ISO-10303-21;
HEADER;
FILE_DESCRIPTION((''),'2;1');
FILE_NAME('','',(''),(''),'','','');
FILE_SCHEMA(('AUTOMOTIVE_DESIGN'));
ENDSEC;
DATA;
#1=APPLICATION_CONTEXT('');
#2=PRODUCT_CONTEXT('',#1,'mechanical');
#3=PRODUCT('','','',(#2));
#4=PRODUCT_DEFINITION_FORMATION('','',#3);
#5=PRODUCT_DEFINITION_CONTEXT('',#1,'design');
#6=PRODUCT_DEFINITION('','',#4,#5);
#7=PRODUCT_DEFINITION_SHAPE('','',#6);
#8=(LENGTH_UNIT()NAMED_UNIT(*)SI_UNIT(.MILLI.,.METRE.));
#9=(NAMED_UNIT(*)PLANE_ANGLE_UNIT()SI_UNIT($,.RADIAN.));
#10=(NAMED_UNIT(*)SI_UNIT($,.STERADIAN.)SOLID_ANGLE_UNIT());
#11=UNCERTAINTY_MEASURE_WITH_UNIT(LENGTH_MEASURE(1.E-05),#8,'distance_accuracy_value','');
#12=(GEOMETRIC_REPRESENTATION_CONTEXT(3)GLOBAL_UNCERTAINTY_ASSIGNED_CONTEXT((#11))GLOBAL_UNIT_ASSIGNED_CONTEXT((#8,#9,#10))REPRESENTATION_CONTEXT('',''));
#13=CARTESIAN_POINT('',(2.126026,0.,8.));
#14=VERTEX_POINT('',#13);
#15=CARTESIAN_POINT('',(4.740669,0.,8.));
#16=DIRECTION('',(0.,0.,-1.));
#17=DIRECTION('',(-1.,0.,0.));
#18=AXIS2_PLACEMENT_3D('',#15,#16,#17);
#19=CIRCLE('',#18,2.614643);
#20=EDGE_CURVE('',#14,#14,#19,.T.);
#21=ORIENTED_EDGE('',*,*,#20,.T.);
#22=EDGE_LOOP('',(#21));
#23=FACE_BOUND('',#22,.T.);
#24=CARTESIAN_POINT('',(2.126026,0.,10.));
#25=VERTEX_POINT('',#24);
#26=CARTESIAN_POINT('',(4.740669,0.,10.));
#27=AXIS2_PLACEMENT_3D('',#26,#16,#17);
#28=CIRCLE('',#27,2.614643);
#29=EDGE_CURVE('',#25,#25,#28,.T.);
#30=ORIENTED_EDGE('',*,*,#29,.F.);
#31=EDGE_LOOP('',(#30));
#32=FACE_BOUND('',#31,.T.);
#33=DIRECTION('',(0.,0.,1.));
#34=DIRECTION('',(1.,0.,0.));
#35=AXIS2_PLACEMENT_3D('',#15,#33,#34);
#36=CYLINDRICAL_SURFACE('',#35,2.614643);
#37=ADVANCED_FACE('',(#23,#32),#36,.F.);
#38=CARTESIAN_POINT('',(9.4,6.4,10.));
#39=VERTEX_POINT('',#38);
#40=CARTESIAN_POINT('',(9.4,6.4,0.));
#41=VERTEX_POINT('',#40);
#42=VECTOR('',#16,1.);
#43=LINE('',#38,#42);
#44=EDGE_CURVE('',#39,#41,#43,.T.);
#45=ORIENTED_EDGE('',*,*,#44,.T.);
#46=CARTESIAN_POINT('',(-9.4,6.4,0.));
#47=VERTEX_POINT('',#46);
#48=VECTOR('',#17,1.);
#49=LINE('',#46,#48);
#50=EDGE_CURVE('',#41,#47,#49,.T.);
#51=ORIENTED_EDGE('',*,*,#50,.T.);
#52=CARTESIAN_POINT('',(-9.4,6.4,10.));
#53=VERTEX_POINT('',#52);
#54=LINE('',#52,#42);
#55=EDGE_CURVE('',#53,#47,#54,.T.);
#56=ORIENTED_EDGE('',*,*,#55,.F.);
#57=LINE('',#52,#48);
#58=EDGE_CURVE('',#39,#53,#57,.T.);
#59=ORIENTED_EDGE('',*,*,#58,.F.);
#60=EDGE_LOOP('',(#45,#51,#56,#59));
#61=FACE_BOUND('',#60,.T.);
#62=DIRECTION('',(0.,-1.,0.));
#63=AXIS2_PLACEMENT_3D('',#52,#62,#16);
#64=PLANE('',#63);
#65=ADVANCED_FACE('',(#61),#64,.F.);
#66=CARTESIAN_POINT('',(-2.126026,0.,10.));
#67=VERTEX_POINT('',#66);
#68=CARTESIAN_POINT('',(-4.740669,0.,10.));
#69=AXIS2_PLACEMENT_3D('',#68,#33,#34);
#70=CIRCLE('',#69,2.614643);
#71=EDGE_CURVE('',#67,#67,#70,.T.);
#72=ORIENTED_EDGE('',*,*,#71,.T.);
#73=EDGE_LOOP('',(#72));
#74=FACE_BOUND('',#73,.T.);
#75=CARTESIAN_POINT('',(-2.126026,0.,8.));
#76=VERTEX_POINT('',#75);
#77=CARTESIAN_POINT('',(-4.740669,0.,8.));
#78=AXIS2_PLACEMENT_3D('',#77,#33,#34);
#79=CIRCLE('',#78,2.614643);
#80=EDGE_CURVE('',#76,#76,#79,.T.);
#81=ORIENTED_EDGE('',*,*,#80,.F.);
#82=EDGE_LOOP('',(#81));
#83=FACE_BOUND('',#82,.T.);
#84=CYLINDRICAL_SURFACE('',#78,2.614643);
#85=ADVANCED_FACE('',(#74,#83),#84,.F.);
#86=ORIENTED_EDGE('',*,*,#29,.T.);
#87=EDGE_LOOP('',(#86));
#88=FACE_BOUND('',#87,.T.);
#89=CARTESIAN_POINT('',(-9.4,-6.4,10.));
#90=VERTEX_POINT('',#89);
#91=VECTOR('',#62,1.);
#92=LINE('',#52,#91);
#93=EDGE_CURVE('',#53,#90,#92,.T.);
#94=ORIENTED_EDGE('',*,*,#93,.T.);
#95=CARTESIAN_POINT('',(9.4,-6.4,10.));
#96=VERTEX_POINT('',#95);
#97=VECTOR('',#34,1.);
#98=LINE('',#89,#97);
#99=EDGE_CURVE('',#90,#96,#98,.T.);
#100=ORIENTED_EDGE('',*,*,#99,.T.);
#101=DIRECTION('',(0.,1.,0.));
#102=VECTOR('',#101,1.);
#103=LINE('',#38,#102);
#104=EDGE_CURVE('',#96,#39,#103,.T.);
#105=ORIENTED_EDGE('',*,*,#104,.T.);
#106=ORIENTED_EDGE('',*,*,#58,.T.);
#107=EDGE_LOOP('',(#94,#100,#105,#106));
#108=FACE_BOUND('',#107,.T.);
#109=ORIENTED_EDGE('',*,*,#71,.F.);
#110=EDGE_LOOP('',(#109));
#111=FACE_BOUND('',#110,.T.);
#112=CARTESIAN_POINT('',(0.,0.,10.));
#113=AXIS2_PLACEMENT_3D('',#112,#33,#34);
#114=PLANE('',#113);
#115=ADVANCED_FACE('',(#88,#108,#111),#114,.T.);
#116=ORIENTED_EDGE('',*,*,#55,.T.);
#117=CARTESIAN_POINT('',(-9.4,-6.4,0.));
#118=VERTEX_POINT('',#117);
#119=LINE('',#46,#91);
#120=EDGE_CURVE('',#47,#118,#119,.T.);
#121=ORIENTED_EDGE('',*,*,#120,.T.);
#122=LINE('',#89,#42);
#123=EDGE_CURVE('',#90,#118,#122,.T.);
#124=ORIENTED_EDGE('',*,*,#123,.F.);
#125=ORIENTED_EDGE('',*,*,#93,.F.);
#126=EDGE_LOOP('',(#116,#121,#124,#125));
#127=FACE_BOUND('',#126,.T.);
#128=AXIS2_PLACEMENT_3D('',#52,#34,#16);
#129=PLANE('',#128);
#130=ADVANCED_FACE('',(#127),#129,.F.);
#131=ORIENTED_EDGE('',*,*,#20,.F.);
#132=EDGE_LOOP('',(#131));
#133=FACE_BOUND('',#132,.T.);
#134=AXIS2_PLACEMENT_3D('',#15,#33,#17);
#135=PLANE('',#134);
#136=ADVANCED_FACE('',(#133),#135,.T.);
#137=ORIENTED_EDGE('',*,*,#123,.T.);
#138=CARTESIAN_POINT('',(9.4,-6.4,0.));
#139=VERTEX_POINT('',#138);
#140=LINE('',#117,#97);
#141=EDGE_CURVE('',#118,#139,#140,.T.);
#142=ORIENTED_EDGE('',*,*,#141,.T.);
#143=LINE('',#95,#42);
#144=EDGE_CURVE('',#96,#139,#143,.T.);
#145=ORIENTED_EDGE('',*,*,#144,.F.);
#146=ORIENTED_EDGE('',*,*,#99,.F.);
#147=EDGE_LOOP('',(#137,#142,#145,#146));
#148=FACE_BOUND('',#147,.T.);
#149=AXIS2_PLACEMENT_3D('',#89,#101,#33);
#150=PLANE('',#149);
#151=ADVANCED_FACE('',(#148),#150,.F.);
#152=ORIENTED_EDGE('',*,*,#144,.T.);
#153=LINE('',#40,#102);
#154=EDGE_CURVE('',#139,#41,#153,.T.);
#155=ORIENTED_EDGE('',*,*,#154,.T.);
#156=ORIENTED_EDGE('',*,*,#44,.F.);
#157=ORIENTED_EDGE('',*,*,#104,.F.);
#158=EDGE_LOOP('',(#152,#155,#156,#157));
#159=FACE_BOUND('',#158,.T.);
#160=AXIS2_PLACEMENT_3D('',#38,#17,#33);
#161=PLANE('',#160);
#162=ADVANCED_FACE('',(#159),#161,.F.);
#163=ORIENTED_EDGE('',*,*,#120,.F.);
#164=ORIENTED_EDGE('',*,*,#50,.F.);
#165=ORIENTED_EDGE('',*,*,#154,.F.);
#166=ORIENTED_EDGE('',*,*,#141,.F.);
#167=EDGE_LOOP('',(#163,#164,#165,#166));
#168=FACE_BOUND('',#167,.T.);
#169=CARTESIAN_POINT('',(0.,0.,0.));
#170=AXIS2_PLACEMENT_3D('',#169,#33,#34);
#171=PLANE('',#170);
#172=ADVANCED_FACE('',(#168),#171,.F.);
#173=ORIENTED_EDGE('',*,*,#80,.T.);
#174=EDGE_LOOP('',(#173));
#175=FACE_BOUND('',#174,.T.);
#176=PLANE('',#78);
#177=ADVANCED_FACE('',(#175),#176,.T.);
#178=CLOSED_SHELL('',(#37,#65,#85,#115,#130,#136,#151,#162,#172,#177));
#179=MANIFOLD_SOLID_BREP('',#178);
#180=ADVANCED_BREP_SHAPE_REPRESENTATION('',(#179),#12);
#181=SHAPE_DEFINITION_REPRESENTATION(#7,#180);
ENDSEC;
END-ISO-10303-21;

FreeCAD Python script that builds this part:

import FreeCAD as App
import Part
import Sketcher
from FreeCAD import Vector


def add_polygon(sketch, points):
    """Adds a closed chain of lines whose ends are joined by coincident constraints."""
    first, n = sketch.GeometryCount, len(points)
    for a, b in zip(points, points[1:] + points[:1]):
        sketch.addGeometry(Part.LineSegment(App.Vector(*a, 0), App.Vector(*b, 0)), False)
    for i in range(n):
        sketch.addConstraint(Sketcher.Constraint("Coincident", first + i, 2, first + (i + 1) % n, 1))

doc = App.newDocument("Part")
params = doc.addObject("Spreadsheet::Sheet", "Params")
for row, (alias, value) in enumerate([
    ("sketch1_width", "18.8 mm"),
    ("sketch1_height", "12.8 mm"),
    ("pad1_length", "10 mm"),
    ("pocket1_length", "2 mm"),
], start=1):
    params.set(f"A{row}", alias)
    params.set(f"B{row}", "=" + value)
    params.setAlias(f"B{row}", alias)

body = doc.addObject("PartDesign::Body", "Body")

# Sketch on XY plane
sketch1 = body.newObject("Sketcher::SketchObject", "Sketch")
sketch1.AttachmentSupport = (doc.getObject("XY_Plane"), [""])
sketch1.MapMode = "FlatFace"
add_polygon(sketch1, [(-9, 6), (-9, -6), (9, -6), (9, 6)])  # lines 0-3
sketch1.addConstraint([
    Sketcher.Constraint("Vertical", 0),
    Sketcher.Constraint("Horizontal", 1),
    Sketcher.Constraint("Vertical", 2),
    Sketcher.Constraint("Horizontal", 3),
    Sketcher.Constraint("Symmetric", 0, 2, 2, 2, -1, 1),
    Sketcher.Constraint("DistanceX", 1, 1, 1, 2, 18.8),
    Sketcher.Constraint("DistanceY", 0, 2, 0, 1, 12.8),
])
sketch1.setExpression("Constraints[9]", "Params.sketch1_width")
sketch1.setExpression("Constraints[10]", "Params.sketch1_height")
pad1 = body.newObject("PartDesign::Pad", "Pad")
pad1.Profile = sketch1
pad1.setExpression("Length", "Params.pad1_length")

# Sketch on XY plane
sketch2 = body.newObject("Sketcher::SketchObject", "Sketch001")
sketch2.AttachmentSupport = (doc.getObject("XY_Plane"), [""])
sketch2.MapMode = "FlatFace"
sketch2.AttachmentOffset = App.Placement(Vector(0, 0, 10), App.Rotation())
sketch2.addGeometry(Part.Circle(Vector(-4.7, 0, 0), Vector(0, 0, 1), 2.6), False)
sketch2.addConstraint([
    Sketcher.Constraint("PointOnObject", 0, 3, -1),
    Sketcher.Constraint("Diameter", 0, 5.229286),
    Sketcher.Constraint("DistanceX", 0, 3, -1, 1, 4.740669),
])
pocket1 = body.newObject("PartDesign::Pocket", "Pocket")
pocket1.Profile = sketch2
pocket1.setExpression("Length", "Params.pocket1_length")
doc.recompute()

mirrored = body.newObject("PartDesign::Mirrored", "Mirrored")
mirrored.Originals = [pocket1]
mirrored.MirrorPlane = (doc.getObject("YZ_Plane"), [""])
body.Tip = mirrored

doc.recompute()
